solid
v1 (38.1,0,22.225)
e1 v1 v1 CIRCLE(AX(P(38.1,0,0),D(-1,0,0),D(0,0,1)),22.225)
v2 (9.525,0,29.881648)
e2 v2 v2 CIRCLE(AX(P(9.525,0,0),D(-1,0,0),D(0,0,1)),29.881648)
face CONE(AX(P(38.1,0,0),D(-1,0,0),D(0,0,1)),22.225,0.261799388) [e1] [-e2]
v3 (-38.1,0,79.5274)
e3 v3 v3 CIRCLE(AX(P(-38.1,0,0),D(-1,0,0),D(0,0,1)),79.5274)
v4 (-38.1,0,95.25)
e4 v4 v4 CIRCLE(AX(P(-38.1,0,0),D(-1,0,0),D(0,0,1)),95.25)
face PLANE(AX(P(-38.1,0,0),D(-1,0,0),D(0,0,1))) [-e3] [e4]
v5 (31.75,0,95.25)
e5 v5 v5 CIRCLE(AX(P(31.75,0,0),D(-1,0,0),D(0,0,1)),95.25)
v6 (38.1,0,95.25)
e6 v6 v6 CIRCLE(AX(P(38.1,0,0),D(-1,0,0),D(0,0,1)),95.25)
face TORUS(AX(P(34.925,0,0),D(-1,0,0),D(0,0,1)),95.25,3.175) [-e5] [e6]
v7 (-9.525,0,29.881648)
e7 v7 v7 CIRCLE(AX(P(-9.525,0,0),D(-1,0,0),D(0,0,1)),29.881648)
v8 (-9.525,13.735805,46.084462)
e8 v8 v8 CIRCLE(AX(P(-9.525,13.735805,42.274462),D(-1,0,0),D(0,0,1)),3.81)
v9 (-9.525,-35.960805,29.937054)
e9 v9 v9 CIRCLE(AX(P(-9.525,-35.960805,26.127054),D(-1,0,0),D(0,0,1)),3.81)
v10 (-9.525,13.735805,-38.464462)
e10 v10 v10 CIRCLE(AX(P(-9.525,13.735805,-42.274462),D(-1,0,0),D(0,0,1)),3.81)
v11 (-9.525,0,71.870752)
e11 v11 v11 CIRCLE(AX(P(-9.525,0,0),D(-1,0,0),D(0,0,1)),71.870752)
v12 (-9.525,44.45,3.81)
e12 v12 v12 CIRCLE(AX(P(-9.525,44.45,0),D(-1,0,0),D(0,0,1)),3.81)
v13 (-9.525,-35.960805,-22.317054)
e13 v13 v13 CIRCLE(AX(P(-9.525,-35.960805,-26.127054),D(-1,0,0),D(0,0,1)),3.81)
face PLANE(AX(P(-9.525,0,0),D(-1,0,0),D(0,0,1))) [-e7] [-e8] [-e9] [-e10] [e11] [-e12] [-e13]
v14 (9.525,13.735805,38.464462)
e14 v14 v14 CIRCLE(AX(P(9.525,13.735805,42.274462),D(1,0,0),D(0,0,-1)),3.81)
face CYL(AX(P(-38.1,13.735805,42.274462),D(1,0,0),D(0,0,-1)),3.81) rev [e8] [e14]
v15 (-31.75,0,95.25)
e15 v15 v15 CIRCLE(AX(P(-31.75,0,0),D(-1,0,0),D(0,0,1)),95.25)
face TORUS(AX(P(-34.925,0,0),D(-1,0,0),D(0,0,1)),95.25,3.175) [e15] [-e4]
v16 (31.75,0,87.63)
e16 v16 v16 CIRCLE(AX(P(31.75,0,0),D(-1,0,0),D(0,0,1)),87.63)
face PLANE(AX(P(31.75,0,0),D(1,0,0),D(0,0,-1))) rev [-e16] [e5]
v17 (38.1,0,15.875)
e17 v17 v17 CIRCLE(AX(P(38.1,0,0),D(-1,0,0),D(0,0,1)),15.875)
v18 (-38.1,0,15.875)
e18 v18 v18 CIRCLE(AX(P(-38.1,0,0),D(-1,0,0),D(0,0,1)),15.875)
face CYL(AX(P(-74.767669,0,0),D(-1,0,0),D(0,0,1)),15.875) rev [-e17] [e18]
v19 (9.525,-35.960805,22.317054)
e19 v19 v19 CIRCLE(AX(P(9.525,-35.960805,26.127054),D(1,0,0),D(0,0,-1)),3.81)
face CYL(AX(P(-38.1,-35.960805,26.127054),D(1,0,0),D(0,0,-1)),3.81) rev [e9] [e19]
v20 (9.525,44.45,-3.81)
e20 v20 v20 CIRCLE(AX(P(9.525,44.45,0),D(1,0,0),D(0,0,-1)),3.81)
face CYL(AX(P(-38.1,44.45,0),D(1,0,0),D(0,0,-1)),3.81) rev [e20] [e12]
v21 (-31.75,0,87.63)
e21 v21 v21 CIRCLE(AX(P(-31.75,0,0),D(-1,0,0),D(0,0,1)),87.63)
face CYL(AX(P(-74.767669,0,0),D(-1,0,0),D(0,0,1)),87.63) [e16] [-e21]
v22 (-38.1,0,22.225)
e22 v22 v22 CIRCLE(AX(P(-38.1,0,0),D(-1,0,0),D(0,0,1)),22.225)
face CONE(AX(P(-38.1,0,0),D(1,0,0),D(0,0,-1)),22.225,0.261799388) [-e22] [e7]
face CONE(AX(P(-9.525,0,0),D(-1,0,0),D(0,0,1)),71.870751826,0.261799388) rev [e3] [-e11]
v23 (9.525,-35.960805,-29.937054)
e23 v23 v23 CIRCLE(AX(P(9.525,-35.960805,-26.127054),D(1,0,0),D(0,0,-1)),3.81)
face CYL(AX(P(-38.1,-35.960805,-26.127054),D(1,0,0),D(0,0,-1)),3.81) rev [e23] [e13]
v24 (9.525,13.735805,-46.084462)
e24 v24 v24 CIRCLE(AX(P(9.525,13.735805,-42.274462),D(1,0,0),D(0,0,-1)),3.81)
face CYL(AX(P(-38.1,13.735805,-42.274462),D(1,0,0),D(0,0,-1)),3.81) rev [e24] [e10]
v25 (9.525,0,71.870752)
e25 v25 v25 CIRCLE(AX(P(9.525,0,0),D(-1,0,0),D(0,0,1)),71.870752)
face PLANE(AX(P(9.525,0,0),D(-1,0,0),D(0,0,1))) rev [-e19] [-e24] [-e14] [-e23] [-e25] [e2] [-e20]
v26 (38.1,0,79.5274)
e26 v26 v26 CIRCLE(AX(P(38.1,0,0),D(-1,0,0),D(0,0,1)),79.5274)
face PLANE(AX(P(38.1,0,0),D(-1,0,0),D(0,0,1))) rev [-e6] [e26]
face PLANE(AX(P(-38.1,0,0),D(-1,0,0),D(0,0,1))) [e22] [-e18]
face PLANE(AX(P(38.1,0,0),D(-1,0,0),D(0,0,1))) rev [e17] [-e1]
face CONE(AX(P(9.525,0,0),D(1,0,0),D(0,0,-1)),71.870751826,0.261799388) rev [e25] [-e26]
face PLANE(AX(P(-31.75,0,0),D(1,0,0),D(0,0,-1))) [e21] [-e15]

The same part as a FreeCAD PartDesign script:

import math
import FreeCAD as App
import Part
import Sketcher

V = App.Vector
Q = App.Units.Quantity

doc = App.newDocument("Part")
body = doc.addObject("PartDesign::Body", "Body")

# Sketch on XY plane
sketch1 = body.newObject("Sketcher::SketchObject", "Sketch")
sketch1.AttachmentSupport = (doc.getObject("XY_Plane"), [""])
sketch1.MapMode = "FlatFace"
sketch1.addGeometry([
    Part.ArcOfCircle(Part.Circle(V(-34.9, 95.2, 0), V(0, 0, 1), 3.2), math.radians(0), math.radians(180)),  # 0
    Part.LineSegment(V(-38.1, 95.2, 0), V(-38.1, 79.5, 0)),  # 1
    Part.LineSegment(V(-38.1, 79.5, 0), V(-9.5, 71.9, 0)),  # 2
    Part.LineSegment(V(-9.5, 71.9, 0), V(-9.5, 29.9, 0)),  # 3
    Part.LineSegment(V(-9.5, 29.9, 0), V(-38.1, 22.2, 0)),  # 4
    Part.LineSegment(V(-38.1, 22.2, 0), V(-38.1, 15.9, 0)),  # 5
    Part.LineSegment(V(-38.1, 15.9, 0), V(38.1, 15.9, 0)),  # 6
    Part.LineSegment(V(38.1, 15.9, 0), V(38.1, 22.2, 0)),  # 7
    Part.LineSegment(V(38.1, 22.2, 0), V(9.5, 29.9, 0)),  # 8
    Part.LineSegment(V(9.5, 29.9, 0), V(9.5, 71.9, 0)),  # 9
    Part.LineSegment(V(9.5, 71.9, 0), V(38.1, 79.5, 0)),  # 10
    Part.LineSegment(V(38.1, 79.5, 0), V(38.1, 95.2, 0)),  # 11
    Part.ArcOfCircle(Part.Circle(V(34.9, 95.2, 0), V(0, 0, 1), 3.2), math.radians(0), math.radians(180)),  # 12
    Part.LineSegment(V(31.8, 95.2, 0), V(31.8, 87.6, 0)),  # 13
    Part.LineSegment(V(31.8, 87.6, 0), V(-31.8, 87.6, 0)),  # 14
    Part.LineSegment(V(-31.8, 87.6, 0), V(-31.8, 95.2, 0)),  # 15
], False)
sketch1.addConstraint([
    Sketcher.Constraint("Tangent", 0, 2, 1, 1),
    Sketcher.Constraint("Coincident", 1, 2, 2, 1),
    Sketcher.Constraint("Coincident", 2, 2, 3, 1),
    Sketcher.Constraint("Coincident", 3, 2, 4, 1),
    Sketcher.Constraint("Coincident", 4, 2, 5, 1),
    Sketcher.Constraint("Coincident", 5, 2, 6, 1),
    Sketcher.Constraint("Coincident", 6, 2, 7, 1),
    Sketcher.Constraint("Coincident", 7, 2, 8, 1),
    Sketcher.Constraint("Coincident", 8, 2, 9, 1),
    Sketcher.Constraint("Coincident", 9, 2, 10, 1),
    Sketcher.Constraint("Coincident", 10, 2, 11, 1),
    Sketcher.Constraint("Tangent", 11, 2, 12, 1),
    Sketcher.Constraint("Tangent", 12, 2, 13, 1),
    Sketcher.Constraint("Coincident", 13, 2, 14, 1),
    Sketcher.Constraint("Coincident", 14, 2, 15, 1),
    Sketcher.Constraint("Tangent", 15, 2, 0, 1),
    Sketcher.Constraint("Vertical", 1),
    Sketcher.Constraint("Vertical", 3),
    Sketcher.Constraint("Vertical", 5),
    Sketcher.Constraint("Horizontal", 6),
    Sketcher.Constraint("Vertical", 7),
    Sketcher.Constraint("Vertical", 9),
    Sketcher.Constraint("Vertical", 11),
    Sketcher.Constraint("Vertical", 13),
    Sketcher.Constraint("Horizontal", 14),
    Sketcher.Constraint("Vertical", 15),
    Sketcher.Constraint("Equal", 0, 12),
    Sketcher.Constraint("Symmetric", 0, 3, 12, 3, -2),
    Sketcher.Constraint("Symmetric", 4, 2, 7, 2, -2),
    Sketcher.Constraint("Symmetric", 3, 2, 8, 2, -2),
    Sketcher.Constraint("Parallel", 2, 8),
    Sketcher.Constraint("Parallel", 4, 10),
    Sketcher.Constraint("Horizontal", 2, 2, 9, 2),
    Sketcher.Constraint("Vertical", 1, 2, 4, 2),
    Sketcher.Constraint("DistanceX", 6, 1, 6, 2, Q("3 in")),
    Sketcher.Constraint("DistanceX", 14, 2, 14, 1, Q("2.5 in")),
    Sketcher.Constraint("DistanceY", 13, 2, 13, 1, Q("0.3 in")),
    Sketcher.Constraint("Angle", 2, Q("-15 deg")),
    Sketcher.Constraint("DistanceX", 0, 3, 2, 2, Q("1 in")),
    Sketcher.Constraint("DistanceY", 5, 2, 5, 1, Q("0.25 in")),
    Sketcher.Constraint("DistanceY", 1, 2, 1, 1, Q("0.619 in")),
    Sketcher.Constraint("DistanceY", -1, 1, 0, 3, Q("3.75 in")),
    Sketcher.Constraint("DistanceY", -1, 1, 4, 2, Q("0.875 in")),
])
revolution = body.newObject("PartDesign::Revolution", "Revolution")
revolution.Profile = sketch1
revolution.ReferenceAxis = (sketch1, ["H_Axis"])
revolution.Angle = 360

# Sketch on YZ plane
sketch2 = body.newObject("Sketcher::SketchObject", "Sketch001")
sketch2.AttachmentSupport = (doc.getObject("YZ_Plane"), [""])
sketch2.MapMode = "FlatFace"
sketch2.AttachmentOffset = App.Placement(V(0, 0, 0.375 * 25.4), App.Rotation())
sketch2.addGeometry([
    Part.Circle(V(44.5, 0, 0), V(0, 0, 1), 3.8),  # 0
    Part.Circle(V(13.7, -42.3, 0), V(0, 0, 1), 3.8),  # 1
    Part.Circle(V(-36, -26.1, 0), V(0, 0, 1), 3.8),  # 2
    Part.Circle(V(-36, 26.1, 0), V(0, 0, 1), 3.8),  # 3
    Part.Circle(V(13.7, 42.3, 0), V(0, 0, 1), 3.8),  # 4
], False)
sketch2.addConstraint([
    Sketcher.Constraint("Equal", 0, 1),
    Sketcher.Constraint("Equal", 1, 2),
    Sketcher.Constraint("Equal", 2, 3),
    Sketcher.Constraint("Equal", 3, 4),
    Sketcher.Constraint("Symmetric", 2, 3, 3, 3, -1),
    Sketcher.Constraint("Symmetric", 1, 3, 4, 3, -1),
    Sketcher.Constraint("PointOnObject", 0, 3, -1),
    Sketcher.Constraint("Diameter", 0, Q("0.3 in")),
    Sketcher.Constraint("DistanceX", -1, 1, 0, 3, Q("1.75 in")),
    Sketcher.Constraint("DistanceX", 2, 3, 1, 3, 49.696611),
    Sketcher.Constraint("DistanceY", 2, 3, 3, 3, 52.254109),
    Sketcher.Constraint("DistanceX", -1, 1, 1, 3, 13.735805),
    Sketcher.Constraint("DistanceY", 1, 3, -1, 1, 42.274462),
])
pocket1 = body.newObject("PartDesign::Pocket", "Pocket")
pocket1.Profile = sketch2
pocket1.Type = "ThroughAll"

doc.recompute()
